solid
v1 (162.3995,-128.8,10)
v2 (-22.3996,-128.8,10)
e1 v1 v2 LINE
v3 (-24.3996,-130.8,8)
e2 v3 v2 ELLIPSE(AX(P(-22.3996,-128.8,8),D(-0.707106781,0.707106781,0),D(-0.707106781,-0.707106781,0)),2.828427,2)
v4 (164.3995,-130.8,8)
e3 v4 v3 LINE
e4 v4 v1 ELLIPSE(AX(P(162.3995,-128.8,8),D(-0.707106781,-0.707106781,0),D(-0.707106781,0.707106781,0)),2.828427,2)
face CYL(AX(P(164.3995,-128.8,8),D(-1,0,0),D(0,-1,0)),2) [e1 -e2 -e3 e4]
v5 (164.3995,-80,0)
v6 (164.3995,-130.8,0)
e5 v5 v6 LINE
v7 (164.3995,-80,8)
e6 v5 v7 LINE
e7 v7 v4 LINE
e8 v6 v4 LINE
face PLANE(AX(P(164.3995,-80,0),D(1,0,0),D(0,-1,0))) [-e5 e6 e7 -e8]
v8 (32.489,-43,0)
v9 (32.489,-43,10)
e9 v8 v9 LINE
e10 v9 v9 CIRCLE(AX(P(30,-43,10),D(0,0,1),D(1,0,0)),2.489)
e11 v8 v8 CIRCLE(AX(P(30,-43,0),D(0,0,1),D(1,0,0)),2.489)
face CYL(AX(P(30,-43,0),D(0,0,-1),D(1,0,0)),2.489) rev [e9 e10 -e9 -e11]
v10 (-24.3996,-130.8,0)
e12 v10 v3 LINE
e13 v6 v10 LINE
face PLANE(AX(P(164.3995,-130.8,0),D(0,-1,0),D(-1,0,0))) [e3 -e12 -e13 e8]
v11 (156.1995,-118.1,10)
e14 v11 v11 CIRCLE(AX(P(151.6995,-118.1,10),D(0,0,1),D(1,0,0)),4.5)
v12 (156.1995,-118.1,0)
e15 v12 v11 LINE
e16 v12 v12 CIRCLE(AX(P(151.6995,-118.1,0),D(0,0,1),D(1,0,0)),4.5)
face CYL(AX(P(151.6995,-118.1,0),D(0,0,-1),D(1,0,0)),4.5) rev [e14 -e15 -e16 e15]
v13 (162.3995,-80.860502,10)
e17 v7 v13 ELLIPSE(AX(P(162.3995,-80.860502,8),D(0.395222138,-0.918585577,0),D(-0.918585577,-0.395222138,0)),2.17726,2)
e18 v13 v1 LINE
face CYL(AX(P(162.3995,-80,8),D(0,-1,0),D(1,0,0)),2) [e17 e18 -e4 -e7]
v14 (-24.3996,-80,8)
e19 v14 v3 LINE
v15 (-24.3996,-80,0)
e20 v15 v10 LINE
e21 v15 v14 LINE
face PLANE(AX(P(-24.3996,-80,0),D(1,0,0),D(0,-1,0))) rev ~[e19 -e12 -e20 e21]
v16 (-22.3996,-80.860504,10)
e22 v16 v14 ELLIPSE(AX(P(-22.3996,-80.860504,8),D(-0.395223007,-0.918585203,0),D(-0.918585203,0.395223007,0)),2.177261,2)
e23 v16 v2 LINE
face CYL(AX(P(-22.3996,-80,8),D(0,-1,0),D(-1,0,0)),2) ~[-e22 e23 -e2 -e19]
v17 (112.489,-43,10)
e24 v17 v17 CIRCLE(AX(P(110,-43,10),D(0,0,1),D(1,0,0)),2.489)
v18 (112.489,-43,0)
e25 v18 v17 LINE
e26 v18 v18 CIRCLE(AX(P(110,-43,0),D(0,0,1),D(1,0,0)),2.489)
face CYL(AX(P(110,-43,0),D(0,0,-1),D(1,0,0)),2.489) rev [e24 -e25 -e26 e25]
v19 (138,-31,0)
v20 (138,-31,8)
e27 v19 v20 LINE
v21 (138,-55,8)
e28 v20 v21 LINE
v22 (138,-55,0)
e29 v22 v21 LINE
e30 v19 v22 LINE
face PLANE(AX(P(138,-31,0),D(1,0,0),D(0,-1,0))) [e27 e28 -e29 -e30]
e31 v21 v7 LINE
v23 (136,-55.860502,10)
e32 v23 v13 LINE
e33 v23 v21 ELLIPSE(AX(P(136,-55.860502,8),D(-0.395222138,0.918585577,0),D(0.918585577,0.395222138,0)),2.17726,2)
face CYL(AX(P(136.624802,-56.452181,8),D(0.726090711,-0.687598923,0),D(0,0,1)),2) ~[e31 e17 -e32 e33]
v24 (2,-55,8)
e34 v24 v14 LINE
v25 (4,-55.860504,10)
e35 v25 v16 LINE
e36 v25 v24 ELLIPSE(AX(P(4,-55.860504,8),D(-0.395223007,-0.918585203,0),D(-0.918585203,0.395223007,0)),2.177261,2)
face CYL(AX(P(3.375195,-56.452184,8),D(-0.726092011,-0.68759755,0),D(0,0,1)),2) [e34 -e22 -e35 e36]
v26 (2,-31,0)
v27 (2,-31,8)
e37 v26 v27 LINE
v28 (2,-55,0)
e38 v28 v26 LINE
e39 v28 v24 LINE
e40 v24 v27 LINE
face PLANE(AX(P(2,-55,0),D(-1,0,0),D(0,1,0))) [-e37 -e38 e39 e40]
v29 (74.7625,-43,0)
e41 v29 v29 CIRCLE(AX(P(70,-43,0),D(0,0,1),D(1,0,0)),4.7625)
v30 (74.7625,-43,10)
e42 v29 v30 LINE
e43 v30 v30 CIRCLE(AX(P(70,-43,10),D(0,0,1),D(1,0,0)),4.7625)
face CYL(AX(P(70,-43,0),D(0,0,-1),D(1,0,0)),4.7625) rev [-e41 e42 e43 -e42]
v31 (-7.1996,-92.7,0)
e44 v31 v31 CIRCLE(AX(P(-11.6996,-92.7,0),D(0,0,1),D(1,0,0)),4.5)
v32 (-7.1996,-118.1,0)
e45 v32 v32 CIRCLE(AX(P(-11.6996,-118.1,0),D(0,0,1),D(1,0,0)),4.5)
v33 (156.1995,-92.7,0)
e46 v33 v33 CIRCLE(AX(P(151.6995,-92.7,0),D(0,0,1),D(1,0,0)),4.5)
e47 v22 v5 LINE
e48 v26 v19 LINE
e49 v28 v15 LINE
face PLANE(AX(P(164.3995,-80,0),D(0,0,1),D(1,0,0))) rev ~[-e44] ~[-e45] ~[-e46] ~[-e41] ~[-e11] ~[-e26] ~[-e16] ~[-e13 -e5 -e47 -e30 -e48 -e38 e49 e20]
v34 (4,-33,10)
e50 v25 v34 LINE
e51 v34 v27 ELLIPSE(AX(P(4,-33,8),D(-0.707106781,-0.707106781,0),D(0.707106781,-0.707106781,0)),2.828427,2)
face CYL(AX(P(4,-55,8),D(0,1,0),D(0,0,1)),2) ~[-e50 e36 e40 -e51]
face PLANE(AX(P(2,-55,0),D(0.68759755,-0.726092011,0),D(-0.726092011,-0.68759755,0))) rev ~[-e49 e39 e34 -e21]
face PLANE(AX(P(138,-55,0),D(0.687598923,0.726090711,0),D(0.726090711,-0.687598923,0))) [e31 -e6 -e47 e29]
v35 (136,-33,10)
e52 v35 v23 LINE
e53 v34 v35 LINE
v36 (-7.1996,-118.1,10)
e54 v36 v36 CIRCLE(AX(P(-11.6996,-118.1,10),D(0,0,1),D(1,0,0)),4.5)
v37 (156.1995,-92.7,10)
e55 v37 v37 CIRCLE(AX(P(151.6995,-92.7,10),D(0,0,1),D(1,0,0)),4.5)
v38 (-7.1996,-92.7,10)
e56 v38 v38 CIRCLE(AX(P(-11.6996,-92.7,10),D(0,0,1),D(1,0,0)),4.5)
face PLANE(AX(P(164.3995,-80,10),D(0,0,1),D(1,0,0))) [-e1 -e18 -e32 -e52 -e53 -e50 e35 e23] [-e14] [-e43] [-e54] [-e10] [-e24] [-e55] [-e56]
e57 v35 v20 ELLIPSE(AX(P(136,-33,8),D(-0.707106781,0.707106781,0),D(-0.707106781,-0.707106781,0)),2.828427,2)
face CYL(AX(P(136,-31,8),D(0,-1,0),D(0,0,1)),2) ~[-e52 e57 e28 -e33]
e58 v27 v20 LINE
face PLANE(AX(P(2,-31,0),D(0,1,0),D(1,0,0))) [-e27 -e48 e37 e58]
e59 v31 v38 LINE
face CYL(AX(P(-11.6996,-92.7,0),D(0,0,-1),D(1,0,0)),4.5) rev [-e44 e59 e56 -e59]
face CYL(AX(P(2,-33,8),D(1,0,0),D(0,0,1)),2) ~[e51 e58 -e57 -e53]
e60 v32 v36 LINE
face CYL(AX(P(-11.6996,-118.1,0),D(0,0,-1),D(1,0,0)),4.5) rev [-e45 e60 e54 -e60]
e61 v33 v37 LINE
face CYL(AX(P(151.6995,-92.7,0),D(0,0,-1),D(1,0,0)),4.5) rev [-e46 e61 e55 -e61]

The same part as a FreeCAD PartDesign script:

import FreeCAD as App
import Part
import Sketcher
Q = App.Units.Quantity


def edges_at(feature, points):
    """Names of the edges that pass closest to the given points."""
    edges = feature.Shape.Edges
    near = lambda p: min(range(len(edges)), key=lambda i: edges[i].distToShape(Part.Vertex(*p))[0])
    return sorted({f"Edge{near(p) + 1}" for p in points})

doc = App.newDocument("Part")
body = doc.addObject("PartDesign::Body", "Body")

# Sketch on XY plane
sketch1 = body.newObject("Sketcher::SketchObject", "Sketch")
sketch1.AttachmentSupport = (doc.getObject("XY_Plane"), [""])
sketch1.MapMode = "FlatFace"
sketch1.addGeometry([
    Part.LineSegment(App.Vector(-24.4, -130.8, 0), App.Vector(164.4, -130.8, 0)),  # 0
    Part.LineSegment(App.Vector(164.4, -130.8, 0), App.Vector(164.4, -80, 0)),  # 1
    Part.LineSegment(App.Vector(164.4, -80, 0), App.Vector(138, -55, 0)),  # 2
    Part.LineSegment(App.Vector(138, -55, 0), App.Vector(138, -31, 0)),  # 3
    Part.LineSegment(App.Vector(138, -31, 0), App.Vector(2, -31, 0)),  # 4
    Part.LineSegment(App.Vector(2, -31, 0), App.Vector(2, -55, 0)),  # 5
    Part.LineSegment(App.Vector(2, -55, 0), App.Vector(-24.4, -80, 0)),  # 6
    Part.LineSegment(App.Vector(-24.4, -80, 0), App.Vector(-24.4, -130.8, 0)),  # 7
    Part.Circle(App.Vector(-11.7, -118.1, 0), App.Vector(0, 0, 1), 4.5),  # 8
    Part.Circle(App.Vector(-11.7, -92.7, 0), App.Vector(0, 0, 1), 4.5),  # 9
    Part.Circle(App.Vector(151.7, -118.1, 0), App.Vector(0, 0, 1), 4.5),  # 10
    Part.Circle(App.Vector(151.7, -92.7, 0), App.Vector(0, 0, 1), 4.5),  # 11
    Part.Circle(App.Vector(110, -43, 0), App.Vector(0, 0, 1), 2.5),  # 12
    Part.Circle(App.Vector(30, -43, 0), App.Vector(0, 0, 1), 2.5),  # 13
    Part.Circle(App.Vector(70, -43, 0), App.Vector(0, 0, 1), 4.8),  # 14
], False)
sketch1.addConstraint([
    Sketcher.Constraint("Coincident", 0, 2, 1, 1),
    Sketcher.Constraint("Coincident", 1, 2, 2, 1),
    Sketcher.Constraint("Coincident", 2, 2, 3, 1),
    Sketcher.Constraint("Coincident", 3, 2, 4, 1),
    Sketcher.Constraint("Coincident", 4, 2, 5, 1),
    Sketcher.Constraint("Coincident", 5, 2, 6, 1),
    Sketcher.Constraint("Coincident", 6, 2, 7, 1),
    Sketcher.Constraint("Coincident", 7, 2, 0, 1),
    Sketcher.Constraint("Horizontal", 0),
    Sketcher.Constraint("Vertical", 1),
    Sketcher.Constraint("Vertical", 3),
    Sketcher.Constraint("Horizontal", 4),
    Sketcher.Constraint("Vertical", 5),
    Sketcher.Constraint("Vertical", 7),
    Sketcher.Constraint("Equal", 8, 9),
    Sketcher.Constraint("Equal", 9, 10),
    Sketcher.Constraint("Equal", 10, 11),
    Sketcher.Constraint("Equal", 12, 13),
    Sketcher.Constraint("Horizontal", 8, 3, 10, 3),
    Sketcher.Constraint("Horizontal", 9, 3, 11, 3),
    Sketcher.Constraint("Horizontal", 12, 3, 13, 3),
    Sketcher.Constraint("Horizontal", 13, 3, 14, 3),
    Sketcher.Constraint("Horizontal", 2, 2, 5, 2),
    Sketcher.Constraint("Horizontal", 1, 2, 6, 2),
    Sketcher.Constraint("Vertical", 8, 3, 9, 3),
    Sketcher.Constraint("Vertical", 10, 3, 11, 3),
    Sketcher.Constraint("Equal", 2, 6),
    Sketcher.Constraint("DistanceX", 4, 2, 4, 1, Q("136 mm")),
    Sketcher.Constraint("DistanceY", 3, 1, 3, 2, Q("24 mm")),
    Sketcher.Constraint("Diameter", 8, Q("9 mm")),
    Sketcher.Constraint("Diameter", 12, Q("4.978 mm")),
    Sketcher.Constraint("Diameter", 14, Q("9.525 mm")),
    Sketcher.Constraint("DistanceX", 14, 3, 12, 3, Q("40 mm")),
    Sketcher.Constraint("DistanceX", 13, 3, 14, 3, Q("40 mm")),
    Sketcher.Constraint("DistanceX", 12, 3, 2, 2, Q("28 mm")),
    Sketcher.Constraint("DistanceY", 2, 2, 12, 3, Q("12 mm")),
    Sketcher.Constraint("DistanceY", 1, 2, 2, 2, Q("25 mm")),
    Sketcher.Constraint("DistanceY", 1, 1, 1, 2, Q("50.8 mm")),
    Sketcher.Constraint("DistanceX", -1, 1, 12, 3, Q("110 mm")),
    Sketcher.Constraint("DistanceY", 12, 3, -1, 1, Q("43 mm")),
    Sketcher.Constraint("DistanceY", 8, 3, -1, 1, Q("118.1 mm")),
    Sketcher.Constraint("DistanceY", 9, 3, -1, 1, Q("92.7 mm")),
    Sketcher.Constraint("Angle", 2, Q("136.5597 deg")),
    Sketcher.Constraint("DistanceX", 10, 3, 0, 2, Q("12.7 mm")),
    Sketcher.Constraint("DistanceX", 6, 2, 9, 3, Q("12.7 mm")),
])
pad1 = body.newObject("PartDesign::Pad", "Pad")
pad1.Profile = sketch1
pad1.Length = 10
doc.recompute()

fillet = body.newObject("PartDesign::Fillet", "Fillet")
fillet.Base = (pad1, edges_at(pad1, [
    (70, -130.8, 10),
    (164.399, -105.4, 10),
    (151.2, -67.5, 10),
    (138, -43, 10),
    (70, -31, 10),
    (2, -43, 10),
    (-11.2, -67.5, 10),
    (-24.399, -105.4, 10),
]))
fillet.Radius = 2

doc.recompute()
